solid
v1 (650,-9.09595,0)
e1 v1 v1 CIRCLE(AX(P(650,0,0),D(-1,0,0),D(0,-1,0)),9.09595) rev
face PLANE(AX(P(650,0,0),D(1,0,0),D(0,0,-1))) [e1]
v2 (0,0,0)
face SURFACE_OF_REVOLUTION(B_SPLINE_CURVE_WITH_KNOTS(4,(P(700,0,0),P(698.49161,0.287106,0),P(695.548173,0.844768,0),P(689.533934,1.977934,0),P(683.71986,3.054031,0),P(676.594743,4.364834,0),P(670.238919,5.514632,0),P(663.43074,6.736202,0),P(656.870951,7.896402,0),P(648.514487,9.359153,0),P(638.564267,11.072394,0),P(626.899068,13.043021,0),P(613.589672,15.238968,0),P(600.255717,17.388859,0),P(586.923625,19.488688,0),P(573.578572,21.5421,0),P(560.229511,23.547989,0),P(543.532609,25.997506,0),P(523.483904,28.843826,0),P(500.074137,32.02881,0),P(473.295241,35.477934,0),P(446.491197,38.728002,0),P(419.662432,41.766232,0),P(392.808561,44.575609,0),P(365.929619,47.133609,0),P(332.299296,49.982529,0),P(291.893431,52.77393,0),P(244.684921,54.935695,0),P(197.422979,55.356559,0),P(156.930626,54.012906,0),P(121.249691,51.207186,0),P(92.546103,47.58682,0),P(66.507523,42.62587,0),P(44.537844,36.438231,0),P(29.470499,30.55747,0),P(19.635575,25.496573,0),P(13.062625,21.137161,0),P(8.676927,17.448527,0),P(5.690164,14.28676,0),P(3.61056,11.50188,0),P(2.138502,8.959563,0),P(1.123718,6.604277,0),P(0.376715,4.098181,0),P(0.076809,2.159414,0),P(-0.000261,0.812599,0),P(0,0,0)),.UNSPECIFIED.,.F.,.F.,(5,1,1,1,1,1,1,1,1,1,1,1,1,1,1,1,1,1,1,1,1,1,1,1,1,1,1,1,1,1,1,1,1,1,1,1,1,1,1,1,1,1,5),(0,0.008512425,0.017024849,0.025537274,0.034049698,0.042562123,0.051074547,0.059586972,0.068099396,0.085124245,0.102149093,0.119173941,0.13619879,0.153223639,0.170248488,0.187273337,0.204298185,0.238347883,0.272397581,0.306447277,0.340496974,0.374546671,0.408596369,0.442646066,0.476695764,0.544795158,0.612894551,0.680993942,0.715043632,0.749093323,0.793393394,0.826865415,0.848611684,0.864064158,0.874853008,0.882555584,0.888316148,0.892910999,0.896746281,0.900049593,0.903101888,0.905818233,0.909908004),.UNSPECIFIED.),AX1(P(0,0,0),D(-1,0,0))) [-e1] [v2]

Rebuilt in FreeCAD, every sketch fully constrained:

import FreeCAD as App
import Part
import Sketcher
Q = App.Units.Quantity

doc = App.newDocument("Part")
params = doc.addObject("Spreadsheet::Sheet", "Params")
for row, (alias, value) in enumerate([
    ("revolution_angle", "360 deg"),
    ("sketch2_diameter", "110 mm"),
    ("pocket1_length", "50 mm"),
], start=1):
    params.set(f"A{row}", alias)
    params.set(f"B{row}", "=" + value)
    params.setAlias(f"B{row}", alias)

body = doc.addObject("PartDesign::Body", "Body")

# Sketch on XY plane
sketch1 = doc.addObject("Sketcher::SketchObject", "Sketch")
body.addObject(sketch1)
sketch1.AttachmentSupport = (doc.XY_Plane, [""])
sketch1.MapMode = "FlatFace"
sketch1.addGeometry([
    Part.LineSegment(App.Vector(0, 0, 0), App.Vector(700, 0, 0)),
    Part.BSplineCurve([App.Vector(0, 0, 0), App.Vector(-0.000261, 0.812599, 0), App.Vector(0.076809, 2.159414, 0), App.Vector(0.376715, 4.098181, 0), App.Vector(1.123718, 6.604277, 0), App.Vector(2.138502, 8.959563, 0), App.Vector(3.61056, 11.50188, 0), App.Vector(5.690164, 14.28676, 0), App.Vector(8.676927, 17.448527, 0), App.Vector(13.062625, 21.137161, 0), App.Vector(19.635575, 25.496573, 0), App.Vector(29.470499, 30.55747, 0), App.Vector(44.537844, 36.438231, 0), App.Vector(66.507523, 42.62587, 0), App.Vector(92.546103, 47.58682, 0), App.Vector(121.249691, 51.207186, 0), App.Vector(156.930626, 54.012906, 0), App.Vector(197.422978, 55.356559, 0), App.Vector(244.684921, 54.935695, 0), App.Vector(291.893431, 52.77393, 0), App.Vector(332.299296, 49.982529, 0), App.Vector(365.929619, 47.133609, 0), App.Vector(392.808561, 44.575609, 0), App.Vector(419.662432, 41.766232, 0), App.Vector(446.491197, 38.728002, 0), App.Vector(473.295241, 35.477934, 0), App.Vector(500.074137, 32.02881, 0), App.Vector(523.483904, 28.843826, 0), App.Vector(543.532609, 25.997506, 0), App.Vector(560.229511, 23.547989, 0), App.Vector(573.578572, 21.5421, 0), App.Vector(586.923625, 19.488688, 0), App.Vector(600.255717, 17.388859, 0), App.Vector(613.589672, 15.238968, 0), App.Vector(626.899068, 13.043021, 0), App.Vector(638.564267, 11.072394, 0), App.Vector(648.514487, 9.359153, 0), App.Vector(656.870951, 7.896402, 0), App.Vector(663.43074, 6.736202, 0), App.Vector(670.238919, 5.514632, 0), App.Vector(676.594743, 4.364834, 0), App.Vector(683.71986, 3.054031, 0), App.Vector(689.533934, 1.977934, 0), App.Vector(695.548173, 0.844768, 0), App.Vector(698.49161, 0.287106, 0), App.Vector(700, 0, 0)], [5, 1, 1, 1, 1, 1, 1, 1, 1, 1, 1, 1, 1, 1, 1, 1, 1, 1, 1, 1, 1, 1, 1, 1, 1, 1, 1, 1, 1, 1, 1, 1, 1, 1, 1, 1, 1, 1, 1, 1, 1, 1, 5], [0, 0.004089771, 0.006806116, 0.009858411, 0.013161723, 0.016997005, 0.021591856, 0.02735242, 0.035054996, 0.045843846, 0.06129632, 0.083042589, 0.11651461, 0.160814682, 0.194864372, 0.228914062, 0.297013453, 0.365112846, 0.43321224, 0.467261938, 0.501311635, 0.535361333, 0.56941103, 0.603460727, 0.637510423, 0.671560121, 0.705609819, 0.722634668, 0.739659517, 0.756684365, 0.773709214, 0.790734063, 0.807758911, 0.824783759, 0.841808608, 0.850321032, 0.858833457, 0.867345881, 0.875858306, 0.884370731, 0.892883155, 0.90139558, 0.909908004], False, 4, [1, 1, 1, 1, 1, 1, 1, 1, 1, 1, 1, 1, 1, 1, 1, 1, 1, 1, 1, 1, 1, 1, 1, 1, 1, 1, 1, 1, 1, 1, 1, 1, 1, 1, 1, 1, 1, 1, 1, 1, 1, 1, 1, 1, 1, 1], False),
], False)
sketch1.addConstraint([
    Sketcher.Constraint("Block", 1),
    Sketcher.Constraint("Coincident", 0, 1, 1, 1),
    Sketcher.Constraint("Coincident", 1, 2, 0, 2),
])
revolution = doc.addObject("PartDesign::Revolution", "Revolution")
body.addObject(revolution)
revolution.Profile = sketch1
revolution.ReferenceAxis = (sketch1, ["H_Axis"])
revolution.setExpression("Angle", "Params.revolution_angle")

# Sketch on YZ plane
sketch2 = doc.addObject("Sketcher::SketchObject", "Sketch001")
body.addObject(sketch2)
sketch2.AttachmentSupport = (doc.YZ_Plane, [""])
sketch2.MapMode = "FlatFace"
sketch2.AttachmentOffset = App.Placement(App.Vector(0, 0, 700), App.Rotation())
sketch2.addGeometry(Part.Circle(App.Vector(0, 0, 0), App.Vector(0, 0, 1), 55), False)
sketch2.addConstraint([
    Sketcher.Constraint("Coincident", 0, 3, -1, 1),
    Sketcher.Constraint("Diameter", 0, Q("110 mm")),
])
sketch2.setExpression("Constraints[1]", "Params.sketch2_diameter")
pocket1 = doc.addObject("PartDesign::Pocket", "Pocket")
body.addObject(pocket1)
pocket1.Profile = sketch2
pocket1.setExpression("Length", "Params.pocket1_length")

doc.recompute()
